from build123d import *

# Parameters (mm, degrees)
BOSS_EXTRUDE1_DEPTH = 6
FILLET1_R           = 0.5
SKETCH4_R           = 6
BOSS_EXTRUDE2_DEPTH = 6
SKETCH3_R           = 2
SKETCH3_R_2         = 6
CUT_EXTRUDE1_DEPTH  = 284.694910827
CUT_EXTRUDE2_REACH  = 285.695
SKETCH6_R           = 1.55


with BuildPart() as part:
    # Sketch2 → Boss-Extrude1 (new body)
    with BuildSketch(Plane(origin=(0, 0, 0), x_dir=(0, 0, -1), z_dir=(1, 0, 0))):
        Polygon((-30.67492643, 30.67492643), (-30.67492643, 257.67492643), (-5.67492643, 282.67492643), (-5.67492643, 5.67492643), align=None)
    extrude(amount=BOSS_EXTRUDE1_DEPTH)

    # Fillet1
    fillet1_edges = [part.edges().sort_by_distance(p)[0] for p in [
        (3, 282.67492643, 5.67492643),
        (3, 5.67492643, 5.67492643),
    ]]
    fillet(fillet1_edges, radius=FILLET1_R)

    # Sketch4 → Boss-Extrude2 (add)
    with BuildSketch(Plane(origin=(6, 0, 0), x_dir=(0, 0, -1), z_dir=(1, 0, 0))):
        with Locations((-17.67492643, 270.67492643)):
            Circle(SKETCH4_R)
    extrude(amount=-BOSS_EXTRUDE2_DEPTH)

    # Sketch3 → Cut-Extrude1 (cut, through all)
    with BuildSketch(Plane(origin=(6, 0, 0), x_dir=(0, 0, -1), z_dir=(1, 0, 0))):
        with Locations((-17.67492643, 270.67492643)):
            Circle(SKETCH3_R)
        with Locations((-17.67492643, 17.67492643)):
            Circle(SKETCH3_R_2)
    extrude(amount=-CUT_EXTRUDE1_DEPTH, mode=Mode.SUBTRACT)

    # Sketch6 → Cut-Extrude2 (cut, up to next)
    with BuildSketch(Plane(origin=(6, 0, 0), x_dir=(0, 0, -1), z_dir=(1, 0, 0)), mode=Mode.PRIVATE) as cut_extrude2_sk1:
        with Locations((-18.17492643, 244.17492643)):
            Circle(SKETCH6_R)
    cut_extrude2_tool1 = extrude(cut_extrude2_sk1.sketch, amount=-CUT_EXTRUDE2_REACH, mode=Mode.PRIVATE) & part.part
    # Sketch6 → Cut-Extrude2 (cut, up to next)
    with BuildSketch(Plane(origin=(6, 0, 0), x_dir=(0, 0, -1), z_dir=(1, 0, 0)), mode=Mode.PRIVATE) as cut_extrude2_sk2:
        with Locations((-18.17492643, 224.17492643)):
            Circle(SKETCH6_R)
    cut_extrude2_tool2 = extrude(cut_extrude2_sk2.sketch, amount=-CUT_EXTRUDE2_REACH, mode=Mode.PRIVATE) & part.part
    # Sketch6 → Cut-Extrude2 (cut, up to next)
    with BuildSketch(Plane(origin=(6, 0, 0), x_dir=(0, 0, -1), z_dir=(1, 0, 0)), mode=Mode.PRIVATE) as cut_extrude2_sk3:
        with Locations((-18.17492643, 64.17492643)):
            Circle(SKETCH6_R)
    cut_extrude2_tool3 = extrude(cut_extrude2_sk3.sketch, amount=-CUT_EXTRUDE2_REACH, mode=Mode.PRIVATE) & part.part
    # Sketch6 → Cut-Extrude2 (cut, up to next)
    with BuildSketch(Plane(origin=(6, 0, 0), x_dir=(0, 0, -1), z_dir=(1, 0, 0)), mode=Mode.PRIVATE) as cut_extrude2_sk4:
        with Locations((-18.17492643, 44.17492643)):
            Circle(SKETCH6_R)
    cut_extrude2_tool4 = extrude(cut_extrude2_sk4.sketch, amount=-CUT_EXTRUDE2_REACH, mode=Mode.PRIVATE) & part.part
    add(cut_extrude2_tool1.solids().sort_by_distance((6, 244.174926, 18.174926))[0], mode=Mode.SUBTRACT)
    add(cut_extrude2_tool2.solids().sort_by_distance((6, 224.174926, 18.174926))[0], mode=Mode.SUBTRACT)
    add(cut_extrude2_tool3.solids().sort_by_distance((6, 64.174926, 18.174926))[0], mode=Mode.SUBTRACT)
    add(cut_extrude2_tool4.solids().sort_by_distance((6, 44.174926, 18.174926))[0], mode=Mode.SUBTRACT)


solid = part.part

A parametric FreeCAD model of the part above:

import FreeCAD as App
import Part
import Sketcher

V = App.Vector


def edges_at(feature, points):
    """Names of the edges that pass closest to the given points."""
    edges = feature.Shape.Edges
    near = lambda p: min(range(len(edges)), key=lambda i: edges[i].distToShape(Part.Vertex(*p))[0])
    return sorted({f"Edge{near(p) + 1}" for p in points})

doc = App.newDocument("Part")
body = doc.addObject("PartDesign::Body", "Body")

# Sketch on YZ plane
sketch1 = doc.addObject("Sketcher::SketchObject", "Sketch")
body.addObject(sketch1)
sketch1.AttachmentSupport = (doc.YZ_Plane, [""])
sketch1.MapMode = "FlatFace"
sketch1.addGeometry(Part.LineSegment(V(258, 31, 0), V(31, 31, 0)), False)
sketch1.addGeometry(Part.LineSegment(V(31, 31, 0), V(6, 6, 0)), False)
sketch1.addGeometry(Part.LineSegment(V(6, 6, 0), V(283, 6, 0)), False)
sketch1.addGeometry(Part.LineSegment(V(283, 6, 0), V(258, 31, 0)), False)
sketch1.addConstraint(Sketcher.Constraint("Coincident", 0, 2, 1, 1))
sketch1.addConstraint(Sketcher.Constraint("Coincident", 1, 2, 2, 1))
sketch1.addConstraint(Sketcher.Constraint("Coincident", 2, 2, 3, 1))
sketch1.addConstraint(Sketcher.Constraint("Coincident", 3, 2, 0, 1))
sketch1.addConstraint(Sketcher.Constraint("Horizontal", 0))
sketch1.addConstraint(Sketcher.Constraint("Horizontal", 2))
sketch1.addConstraint(Sketcher.Constraint("Perpendicular", 1, 3))
sketch1.addConstraint(Sketcher.Constraint("Equal", 1, 3))
sketch1.addConstraint(Sketcher.Constraint("DistanceX", 0, 2, 0, 1, 227.0))
sketch1.addConstraint(Sketcher.Constraint("DistanceX", 2, 1, 2, 2, 277.0))
sketch1.addConstraint(Sketcher.Constraint("DistanceX", -1, 1, 0, 2, 30.674926))
sketch1.addConstraint(Sketcher.Constraint("DistanceY", -1, 1, 0, 2, 30.674926))
pad1 = doc.addObject("PartDesign::Pad", "Pad")
body.addObject(pad1)
pad1.Profile = sketch1
pad1.Length = 6
doc.recompute()

fillet = doc.addObject("PartDesign::Fillet", "Fillet")
body.addObject(fillet)
fillet.Base = (pad1, edges_at(pad1, [(3, 282.675, 5.675), (3, 5.675, 5.675)]))
fillet.Radius = 0.5

# Sketch on YZ plane
sketch2 = doc.addObject("Sketcher::SketchObject", "Sketch001")
body.addObject(sketch2)
sketch2.AttachmentSupport = (doc.YZ_Plane, [""])
sketch2.MapMode = "FlatFace"
sketch2.AttachmentOffset = App.Placement(V(0, 0, 6), App.Rotation())
sketch2.addGeometry(Part.Circle(V(271, 18, 0), V(0, 0, 1), 6), False)
sketch2.addConstraint(Sketcher.Constraint("Diameter", 0, 12.0))
sketch2.addConstraint(Sketcher.Constraint("DistanceX", -1, 1, 0, 3, 270.674926))
sketch2.addConstraint(Sketcher.Constraint("DistanceY", -1, 1, 0, 3, 17.674926))
pad2 = doc.addObject("PartDesign::Pad", "Pad001")
body.addObject(pad2)
pad2.Profile = sketch2
pad2.Length = 6
pad2.Reversed = True

# Sketch on YZ plane
sketch3 = doc.addObject("Sketcher::SketchObject", "Sketch002")
body.addObject(sketch3)
sketch3.AttachmentSupport = (doc.YZ_Plane, [""])
sketch3.MapMode = "FlatFace"
sketch3.AttachmentOffset = App.Placement(V(0, 0, 6), App.Rotation())
sketch3.addGeometry(Part.Circle(V(270.7, 17.7, 0), V(0, 0, 1), 2), False)
sketch3.addGeometry(Part.Circle(V(17.7, 17.7, 0), V(0, 0, 1), 6), False)
sketch3.addConstraint(Sketcher.Constraint("Horizontal", 0, 3, 1, 3))
sketch3.addConstraint(Sketcher.Constraint("Diameter", 0, 4.0))
sketch3.addConstraint(Sketcher.Constraint("Diameter", 1, 12.0))
sketch3.addConstraint(Sketcher.Constraint("DistanceX", 1, 3, 0, 3, 253.0))
sketch3.addConstraint(Sketcher.Constraint("DistanceX", -1, 1, 0, 3, 270.674926))
sketch3.addConstraint(Sketcher.Constraint("DistanceY", -1, 1, 0, 3, 17.674926))
pocket1 = doc.addObject("PartDesign::Pocket", "Pocket")
body.addObject(pocket1)
pocket1.Profile = sketch3
pocket1.Type = "ThroughAll"

# Sketch on YZ plane
sketch4 = doc.addObject("Sketcher::SketchObject", "Sketch003")
body.addObject(sketch4)
sketch4.AttachmentSupport = (doc.YZ_Plane, [""])
sketch4.MapMode = "FlatFace"
sketch4.AttachmentOffset = App.Placement(V(0, 0, 6), App.Rotation())
sketch4.addGeometry(Part.Circle(V(244.2, 18.2, 0), V(0, 0, 1), 1.6), False)
sketch4.addConstraint(Sketcher.Constraint("Diameter", 0, 3.1))
sketch4.addConstraint(Sketcher.Constraint("DistanceX", -1, 1, 0, 3, 244.174926))
sketch4.addConstraint(Sketcher.Constraint("DistanceY", -1, 1, 0, 3, 18.174926))
pocket2 = doc.addObject("PartDesign::Pocket", "Pocket001")
body.addObject(pocket2)
pocket2.Profile = sketch4
pocket2.Type = "UpToFirst"

# Sketch on YZ plane
sketch5 = doc.addObject("Sketcher::SketchObject", "Sketch004")
body.addObject(sketch5)
sketch5.AttachmentSupport = (doc.YZ_Plane, [""])
sketch5.MapMode = "FlatFace"
sketch5.AttachmentOffset = App.Placement(V(0, 0, 6), App.Rotation())
sketch5.addGeometry(Part.Circle(V(224.2, 18.2, 0), V(0, 0, 1), 1.6), False)
sketch5.addConstraint(Sketcher.Constraint("Diameter", 0, 3.1))
sketch5.addConstraint(Sketcher.Constraint("DistanceX", -1, 1, 0, 3, 224.174926))
sketch5.addConstraint(Sketcher.Constraint("DistanceY", -1, 1, 0, 3, 18.174926))
pocket3 = doc.addObject("PartDesign::Pocket", "Pocket002")
body.addObject(pocket3)
pocket3.Profile = sketch5
pocket3.Type = "UpToFirst"

# Sketch on YZ plane
sketch6 = doc.addObject("Sketcher::SketchObject", "Sketch005")
body.addObject(sketch6)
sketch6.AttachmentSupport = (doc.YZ_Plane, [""])
sketch6.MapMode = "FlatFace"
sketch6.AttachmentOffset = App.Placement(V(0, 0, 6), App.Rotation())
sketch6.addGeometry(Part.Circle(V(64.2, 18.2, 0), V(0, 0, 1), 1.6), False)
sketch6.addConstraint(Sketcher.Constraint("Diameter", 0, 3.1))
sketch6.addConstraint(Sketcher.Constraint("DistanceX", -1, 1, 0, 3, 64.174926))
sketch6.addConstraint(Sketcher.Constraint("DistanceY", -1, 1, 0, 3, 18.174926))
pocket4 = doc.addObject("PartDesign::Pocket", "Pocket003")
body.addObject(pocket4)
pocket4.Profile = sketch6
pocket4.Type = "UpToFirst"

# Sketch on YZ plane
sketch7 = doc.addObject("Sketcher::SketchObject", "Sketch006")
body.addObject(sketch7)
sketch7.AttachmentSupport = (doc.YZ_Plane, [""])
sketch7.MapMode = "FlatFace"
sketch7.AttachmentOffset = App.Placement(V(0, 0, 6), App.Rotation())
sketch7.addGeometry(Part.Circle(V(44.2, 18.2, 0), V(0, 0, 1), 1.6), False)
sketch7.addConstraint(Sketcher.Constraint("Diameter", 0, 3.1))
sketch7.addConstraint(Sketcher.Constraint("DistanceX", -1, 1, 0, 3, 44.174926))
sketch7.addConstraint(Sketcher.Constraint("DistanceY", -1, 1, 0, 3, 18.174926))
pocket5 = doc.addObject("PartDesign::Pocket", "Pocket004")
body.addObject(pocket5)
pocket5.Profile = sketch7
pocket5.Type = "UpToFirst"

doc.recompute()
